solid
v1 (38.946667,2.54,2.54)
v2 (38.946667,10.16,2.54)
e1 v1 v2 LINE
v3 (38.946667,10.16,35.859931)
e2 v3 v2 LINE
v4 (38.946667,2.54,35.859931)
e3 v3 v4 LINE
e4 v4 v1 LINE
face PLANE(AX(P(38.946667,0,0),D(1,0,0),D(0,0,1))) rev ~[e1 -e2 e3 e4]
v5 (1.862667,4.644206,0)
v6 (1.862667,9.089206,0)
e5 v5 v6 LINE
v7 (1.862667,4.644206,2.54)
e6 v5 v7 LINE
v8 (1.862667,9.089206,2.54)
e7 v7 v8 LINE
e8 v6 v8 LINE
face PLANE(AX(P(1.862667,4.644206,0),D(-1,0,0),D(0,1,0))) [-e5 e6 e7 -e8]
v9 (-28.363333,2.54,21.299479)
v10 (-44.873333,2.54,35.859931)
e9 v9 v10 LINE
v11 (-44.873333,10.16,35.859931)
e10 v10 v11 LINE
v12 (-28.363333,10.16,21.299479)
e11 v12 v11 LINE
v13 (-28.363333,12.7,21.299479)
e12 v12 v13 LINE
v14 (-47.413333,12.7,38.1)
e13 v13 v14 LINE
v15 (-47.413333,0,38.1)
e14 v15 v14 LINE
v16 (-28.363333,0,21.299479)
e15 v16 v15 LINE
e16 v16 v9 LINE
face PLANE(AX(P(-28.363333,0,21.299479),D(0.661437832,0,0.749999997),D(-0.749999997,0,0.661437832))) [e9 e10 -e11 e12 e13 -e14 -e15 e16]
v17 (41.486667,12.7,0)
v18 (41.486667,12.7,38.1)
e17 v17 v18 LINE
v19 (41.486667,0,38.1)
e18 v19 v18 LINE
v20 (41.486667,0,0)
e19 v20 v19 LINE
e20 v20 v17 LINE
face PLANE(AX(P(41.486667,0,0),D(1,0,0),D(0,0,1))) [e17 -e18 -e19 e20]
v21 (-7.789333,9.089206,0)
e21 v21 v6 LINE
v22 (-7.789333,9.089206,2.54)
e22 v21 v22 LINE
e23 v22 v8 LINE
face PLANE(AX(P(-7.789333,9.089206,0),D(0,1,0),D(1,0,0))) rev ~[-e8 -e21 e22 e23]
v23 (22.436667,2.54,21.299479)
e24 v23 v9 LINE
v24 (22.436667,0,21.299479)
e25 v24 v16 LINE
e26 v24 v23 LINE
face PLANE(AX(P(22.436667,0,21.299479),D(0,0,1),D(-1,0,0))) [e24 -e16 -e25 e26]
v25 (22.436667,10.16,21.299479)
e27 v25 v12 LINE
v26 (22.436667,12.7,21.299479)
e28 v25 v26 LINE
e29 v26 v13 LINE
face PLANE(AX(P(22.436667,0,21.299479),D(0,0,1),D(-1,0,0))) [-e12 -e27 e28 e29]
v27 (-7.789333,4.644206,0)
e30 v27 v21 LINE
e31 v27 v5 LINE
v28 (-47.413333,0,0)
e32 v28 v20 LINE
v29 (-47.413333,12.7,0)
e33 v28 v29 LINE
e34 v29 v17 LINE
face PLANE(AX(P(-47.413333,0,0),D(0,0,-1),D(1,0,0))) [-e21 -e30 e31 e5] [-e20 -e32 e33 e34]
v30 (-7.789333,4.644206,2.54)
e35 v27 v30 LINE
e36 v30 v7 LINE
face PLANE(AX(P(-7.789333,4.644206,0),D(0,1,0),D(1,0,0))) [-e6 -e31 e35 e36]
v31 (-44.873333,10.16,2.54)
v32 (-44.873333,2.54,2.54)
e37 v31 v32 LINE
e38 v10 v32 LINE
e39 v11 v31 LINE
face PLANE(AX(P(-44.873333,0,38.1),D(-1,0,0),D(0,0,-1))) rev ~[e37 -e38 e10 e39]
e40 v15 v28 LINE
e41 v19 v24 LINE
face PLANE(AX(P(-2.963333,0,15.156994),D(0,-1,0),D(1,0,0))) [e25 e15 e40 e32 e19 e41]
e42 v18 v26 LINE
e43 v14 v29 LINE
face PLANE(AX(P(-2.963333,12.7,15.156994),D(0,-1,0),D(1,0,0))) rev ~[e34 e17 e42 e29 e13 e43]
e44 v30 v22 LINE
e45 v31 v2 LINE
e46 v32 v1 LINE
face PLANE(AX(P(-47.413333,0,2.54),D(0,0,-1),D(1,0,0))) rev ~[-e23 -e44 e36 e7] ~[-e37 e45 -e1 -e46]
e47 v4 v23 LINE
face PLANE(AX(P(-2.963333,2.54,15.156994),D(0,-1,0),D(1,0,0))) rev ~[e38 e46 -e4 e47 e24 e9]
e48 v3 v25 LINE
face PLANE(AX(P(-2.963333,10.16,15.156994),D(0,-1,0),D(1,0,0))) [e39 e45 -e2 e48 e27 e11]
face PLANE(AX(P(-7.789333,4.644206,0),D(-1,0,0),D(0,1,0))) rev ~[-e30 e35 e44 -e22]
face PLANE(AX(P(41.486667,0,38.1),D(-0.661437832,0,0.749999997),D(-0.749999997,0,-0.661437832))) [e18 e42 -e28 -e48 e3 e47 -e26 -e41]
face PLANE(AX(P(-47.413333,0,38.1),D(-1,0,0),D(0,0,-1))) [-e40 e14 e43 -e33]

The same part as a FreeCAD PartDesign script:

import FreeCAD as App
import Part
import Sketcher

V = App.Vector
Q = App.Units.Quantity


def faces_at(feature, points):
    """Names of the faces that lie closest to the given points."""
    faces = feature.Shape.Faces
    near = lambda p: min(range(len(faces)), key=lambda i: faces[i].distToShape(Part.Vertex(*p))[0])
    return sorted({f"Face{near(p) + 1}" for p in points})


def add_polygon(sketch, points):
    """Adds a closed chain of lines whose ends are joined by coincident constraints."""
    first, n = sketch.GeometryCount, len(points)
    for a, b in zip(points, points[1:] + points[:1]):
        sketch.addGeometry(Part.LineSegment(App.Vector(*a, 0), App.Vector(*b, 0)), False)
    for i in range(n):
        sketch.addConstraint(Sketcher.Constraint("Coincident", first + i, 2, first + (i + 1) % n, 1))

doc = App.newDocument("Part")
body = doc.addObject("PartDesign::Body", "Body")

# Sketch on XZ plane
sketch1 = body.newObject("Sketcher::SketchObject", "Sketch")
sketch1.AttachmentSupport = (doc.getObject("XZ_Plane"), [""])
sketch1.MapMode = "FlatFace"
add_polygon(sketch1, [(-47, 38), (-47, 0), (41, 0), (41, 38), (22, 21), (-28, 21)])  # lines 0-5
sketch1.addConstraint([
    Sketcher.Constraint("Vertical", 0),
    Sketcher.Constraint("Horizontal", 1),
    Sketcher.Constraint("Vertical", 2),
    Sketcher.Constraint("Horizontal", 4),
    Sketcher.Constraint("PointOnObject", 0, 2, -1),
    Sketcher.Constraint("Horizontal", 2, 2, 5, 2),
    Sketcher.Constraint("Equal", 3, 5),
    Sketcher.Constraint("DistanceX", 4, 2, 4, 1, Q("2 in")),
    Sketcher.Constraint("Distance", 3, Q("1 in")),
    Sketcher.Constraint("DistanceX", 1, 1, 1, 2, Q("3.5 in")),
    Sketcher.Constraint("DistanceY", 0, 2, 0, 1, Q("1.5 in")),
    Sketcher.Constraint("DistanceX", 0, 2, -1, 1, Q("47.413333 mm")),
])
pad1 = body.newObject("PartDesign::Pad", "Pad")
pad1.Profile = sketch1
pad1.Length = Q("0.5 in")
pad1.Reversed = True
doc.recompute()

thickness = body.newObject("PartDesign::Thickness", "Thickness")
thickness.Base = (pad1, faces_at(pad1, [(-2.963, 6.35, 21.299), (-37.888, 6.35, 29.7), (31.962, 6.35, 29.7)]))
thickness.Value = Q("0.1 in")
thickness.Reversed = True
thickness.Join = "Arc"

# Sketch on XY plane
sketch2 = body.newObject("Sketcher::SketchObject", "Sketch001")
sketch2.AttachmentSupport = (doc.getObject("XY_Plane"), [""])
sketch2.MapMode = "FlatFace"
add_polygon(sketch2, [(-7.8, 9.1), (-7.8, 4.6), (1.9, 4.6), (1.9, 9.1)])  # lines 0-3
sketch2.addConstraint([
    Sketcher.Constraint("Vertical", 0),
    Sketcher.Constraint("Horizontal", 1),
    Sketcher.Constraint("Vertical", 2),
    Sketcher.Constraint("Horizontal", 3),
    Sketcher.Constraint("DistanceX", 1, 1, 1, 2, Q("0.38 in")),
    Sketcher.Constraint("DistanceY", 0, 2, 0, 1, Q("0.175 in")),
    Sketcher.Constraint("DistanceX", 0, 2, -1, 1, Q("7.789333 mm")),
    Sketcher.Constraint("DistanceY", -1, 1, 0, 2, Q("4.644206 mm")),
])
pocket1 = body.newObject("PartDesign::Pocket", "Pocket")
pocket1.Profile = sketch2
pocket1.Length = Q("1 in")
pocket1.Reversed = True

doc.recompute()
